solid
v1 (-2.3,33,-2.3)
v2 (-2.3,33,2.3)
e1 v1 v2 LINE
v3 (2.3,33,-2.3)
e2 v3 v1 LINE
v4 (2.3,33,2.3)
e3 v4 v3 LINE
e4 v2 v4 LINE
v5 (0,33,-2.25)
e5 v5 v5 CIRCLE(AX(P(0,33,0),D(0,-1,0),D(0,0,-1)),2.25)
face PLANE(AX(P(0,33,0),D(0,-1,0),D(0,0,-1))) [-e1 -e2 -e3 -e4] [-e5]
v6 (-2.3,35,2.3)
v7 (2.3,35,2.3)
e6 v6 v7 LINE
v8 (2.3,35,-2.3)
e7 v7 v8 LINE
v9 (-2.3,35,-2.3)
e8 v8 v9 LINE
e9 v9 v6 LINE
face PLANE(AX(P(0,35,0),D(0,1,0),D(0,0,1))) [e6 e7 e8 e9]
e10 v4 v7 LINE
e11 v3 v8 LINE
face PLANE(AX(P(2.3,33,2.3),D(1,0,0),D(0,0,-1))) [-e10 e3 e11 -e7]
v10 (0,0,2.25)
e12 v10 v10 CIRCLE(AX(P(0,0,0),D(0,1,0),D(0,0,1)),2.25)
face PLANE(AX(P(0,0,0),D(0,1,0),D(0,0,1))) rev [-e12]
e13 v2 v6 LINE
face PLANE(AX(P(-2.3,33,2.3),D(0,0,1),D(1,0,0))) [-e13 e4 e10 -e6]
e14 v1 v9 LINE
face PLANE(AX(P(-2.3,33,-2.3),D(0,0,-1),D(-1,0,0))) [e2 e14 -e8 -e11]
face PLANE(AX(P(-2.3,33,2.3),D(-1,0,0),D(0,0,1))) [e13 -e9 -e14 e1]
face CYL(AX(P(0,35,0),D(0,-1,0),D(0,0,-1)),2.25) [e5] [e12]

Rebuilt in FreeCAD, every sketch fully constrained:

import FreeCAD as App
import Part
import Sketcher
from FreeCAD import Vector

doc = App.newDocument("Part")
body = doc.addObject("PartDesign::Body", "Body")

sketch1 = body.newObject("Sketcher::SketchObject", "Sketch")
sketch1.AttachmentSupport = (doc.getObject("XZ_Plane"), [""])
sketch1.MapMode = "FlatFace"
sketch1.addGeometry(Part.Circle(Vector(0, 0, 0), Vector(0, 0, 1), 2.25), False)
sketch1.addConstraint(Sketcher.Constraint("Coincident", 0, 3, -1, 1))
sketch1.addConstraint(Sketcher.Constraint("Diameter", 0, 4.5))
pad1 = body.newObject("PartDesign::Pad", "Pad")
pad1.Profile = sketch1
pad1.Length = 35
pad1.Reversed = True

sketch2 = body.newObject("Sketcher::SketchObject", "Sketch001")
sketch2.AttachmentSupport = (doc.getObject("XZ_Plane"), [""])
sketch2.MapMode = "FlatFace"
sketch2.AttachmentOffset = App.Placement(Vector(0, 0, -35), App.Rotation())
sketch2.addGeometry(Part.LineSegment(Vector(-2.3, -2.3, 0), Vector(-2.3, 2.3, 0)), False)
sketch2.addGeometry(Part.LineSegment(Vector(-2.3, 2.3, 0), Vector(2.3, 2.3, 0)), False)
sketch2.addGeometry(Part.LineSegment(Vector(2.3, 2.3, 0), Vector(2.3, -2.3, 0)), False)
sketch2.addGeometry(Part.LineSegment(Vector(2.3, -2.3, 0), Vector(-2.3, -2.3, 0)), False)
sketch2.addConstraint(Sketcher.Constraint("Coincident", 0, 2, 1, 1))
sketch2.addConstraint(Sketcher.Constraint("Coincident", 1, 2, 2, 1))
sketch2.addConstraint(Sketcher.Constraint("Coincident", 2, 2, 3, 1))
sketch2.addConstraint(Sketcher.Constraint("Coincident", 3, 2, 0, 1))
sketch2.addConstraint(Sketcher.Constraint("Vertical", 0))
sketch2.addConstraint(Sketcher.Constraint("Horizontal", 1))
sketch2.addConstraint(Sketcher.Constraint("Vertical", 2))
sketch2.addConstraint(Sketcher.Constraint("Horizontal", 3))
sketch2.addConstraint(Sketcher.Constraint("Symmetric", 0, 2, 2, 2, -1, 1))
sketch2.addConstraint(Sketcher.Constraint("Equal", 3, 0))
sketch2.addConstraint(Sketcher.Constraint("DistanceX", 1, 1, 1, 2, 4.6))
pad2 = body.newObject("PartDesign::Pad", "Pad001")
pad2.Profile = sketch2
pad2.Length = 2

doc.recompute()
